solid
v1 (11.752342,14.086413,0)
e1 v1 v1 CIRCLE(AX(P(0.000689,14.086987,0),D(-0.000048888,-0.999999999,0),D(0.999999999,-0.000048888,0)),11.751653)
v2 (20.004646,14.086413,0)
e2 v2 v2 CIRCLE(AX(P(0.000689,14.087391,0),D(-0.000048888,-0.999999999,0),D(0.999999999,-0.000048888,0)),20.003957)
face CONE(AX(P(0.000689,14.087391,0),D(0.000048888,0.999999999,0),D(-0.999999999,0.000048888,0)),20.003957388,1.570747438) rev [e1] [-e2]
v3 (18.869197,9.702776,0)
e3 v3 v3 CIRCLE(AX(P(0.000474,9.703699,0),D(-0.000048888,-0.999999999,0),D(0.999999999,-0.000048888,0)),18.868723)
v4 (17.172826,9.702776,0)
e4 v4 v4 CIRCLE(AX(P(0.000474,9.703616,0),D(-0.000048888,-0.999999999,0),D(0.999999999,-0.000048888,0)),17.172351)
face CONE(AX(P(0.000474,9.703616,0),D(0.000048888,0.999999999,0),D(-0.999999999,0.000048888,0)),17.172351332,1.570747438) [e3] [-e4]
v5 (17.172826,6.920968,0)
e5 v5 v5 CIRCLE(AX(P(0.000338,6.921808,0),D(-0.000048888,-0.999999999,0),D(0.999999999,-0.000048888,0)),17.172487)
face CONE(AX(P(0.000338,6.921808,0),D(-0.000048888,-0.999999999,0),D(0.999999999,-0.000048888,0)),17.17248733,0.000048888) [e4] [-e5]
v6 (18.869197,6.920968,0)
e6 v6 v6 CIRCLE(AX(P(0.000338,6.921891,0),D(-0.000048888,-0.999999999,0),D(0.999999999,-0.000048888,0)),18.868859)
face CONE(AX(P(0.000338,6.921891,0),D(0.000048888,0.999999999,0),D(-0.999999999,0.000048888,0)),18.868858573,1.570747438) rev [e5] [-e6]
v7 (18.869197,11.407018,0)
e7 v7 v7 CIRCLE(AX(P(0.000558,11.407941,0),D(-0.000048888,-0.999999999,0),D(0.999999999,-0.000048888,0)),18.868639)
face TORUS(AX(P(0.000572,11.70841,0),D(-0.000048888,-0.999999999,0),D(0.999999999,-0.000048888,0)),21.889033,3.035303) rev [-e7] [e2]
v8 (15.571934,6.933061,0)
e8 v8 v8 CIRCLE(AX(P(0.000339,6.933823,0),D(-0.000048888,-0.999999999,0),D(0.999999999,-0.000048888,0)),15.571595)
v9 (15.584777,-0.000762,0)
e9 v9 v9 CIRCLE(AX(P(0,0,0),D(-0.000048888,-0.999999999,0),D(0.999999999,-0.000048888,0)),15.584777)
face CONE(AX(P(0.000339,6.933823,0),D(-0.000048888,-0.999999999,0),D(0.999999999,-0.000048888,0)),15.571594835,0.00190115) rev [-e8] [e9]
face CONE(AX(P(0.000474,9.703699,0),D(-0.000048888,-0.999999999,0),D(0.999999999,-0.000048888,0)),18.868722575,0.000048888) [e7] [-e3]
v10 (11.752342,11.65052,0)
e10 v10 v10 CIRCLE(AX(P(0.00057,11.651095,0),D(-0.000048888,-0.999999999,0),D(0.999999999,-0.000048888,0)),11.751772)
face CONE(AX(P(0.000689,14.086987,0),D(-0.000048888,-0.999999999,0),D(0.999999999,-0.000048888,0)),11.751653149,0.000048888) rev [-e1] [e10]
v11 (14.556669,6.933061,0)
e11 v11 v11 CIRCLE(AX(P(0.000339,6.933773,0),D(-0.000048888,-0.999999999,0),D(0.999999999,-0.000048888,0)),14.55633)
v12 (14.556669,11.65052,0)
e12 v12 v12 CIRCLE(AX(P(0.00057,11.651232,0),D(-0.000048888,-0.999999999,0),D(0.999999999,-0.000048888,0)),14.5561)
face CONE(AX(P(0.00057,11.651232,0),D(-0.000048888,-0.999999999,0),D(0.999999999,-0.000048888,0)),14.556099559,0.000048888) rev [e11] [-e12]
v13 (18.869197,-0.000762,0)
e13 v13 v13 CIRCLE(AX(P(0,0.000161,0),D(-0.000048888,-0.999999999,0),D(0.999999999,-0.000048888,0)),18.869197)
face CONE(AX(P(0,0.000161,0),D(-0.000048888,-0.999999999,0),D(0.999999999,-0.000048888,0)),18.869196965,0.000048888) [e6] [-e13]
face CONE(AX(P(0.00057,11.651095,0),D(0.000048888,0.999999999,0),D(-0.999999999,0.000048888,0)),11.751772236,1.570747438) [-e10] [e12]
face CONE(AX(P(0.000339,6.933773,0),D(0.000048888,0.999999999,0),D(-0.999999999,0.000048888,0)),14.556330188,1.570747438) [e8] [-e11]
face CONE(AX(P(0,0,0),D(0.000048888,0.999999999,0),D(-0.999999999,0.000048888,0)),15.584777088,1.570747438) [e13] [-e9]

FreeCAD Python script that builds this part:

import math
import FreeCAD as App
import Part
import Sketcher
Q = App.Units.Quantity

doc = App.newDocument("Part")
params = doc.addObject("Spreadsheet::Sheet", "Params")
for row, (alias, value) in enumerate([
    ("revolution_angle", "360 deg"),
], start=1):
    params.set(f"A{row}", alias)
    params.set(f"B{row}", "=" + value)
    params.setAlias(f"B{row}", alias)

body = doc.addObject("PartDesign::Body", "Body")

# Sketch on XY plane
sketch1 = body.newObject("Sketcher::SketchObject", "Sketch")
sketch1.AttachmentSupport = (doc.getObject("XY_Plane"), [""])
sketch1.MapMode = "FlatFace"
sketch1.addGeometry(Part.LineSegment(App.Vector(20, 14.1, 0), App.Vector(11.8, 14.1, 0)), False)
sketch1.addGeometry(Part.LineSegment(App.Vector(11.8, 14.1, 0), App.Vector(11.8, 11.7, 0)), False)
sketch1.addGeometry(Part.LineSegment(App.Vector(11.8, 11.7, 0), App.Vector(14.6, 11.7, 0)), False)
sketch1.addGeometry(Part.LineSegment(App.Vector(14.6, 11.7, 0), App.Vector(14.6, 6.9, 0)), False)
sketch1.addGeometry(Part.LineSegment(App.Vector(14.6, 6.9, 0), App.Vector(15.6, 6.9, 0)), False)
sketch1.addGeometry(Part.LineSegment(App.Vector(15.6, 6.9, 0), App.Vector(15.6, 0, 0)), False)
sketch1.addGeometry(Part.LineSegment(App.Vector(15.6, 0, 0), App.Vector(18.9, 0, 0)), False)
sketch1.addGeometry(Part.LineSegment(App.Vector(18.9, 0, 0), App.Vector(18.9, 6.9, 0)), False)
sketch1.addGeometry(Part.LineSegment(App.Vector(18.9, 6.9, 0), App.Vector(17.2, 6.9, 0)), False)
sketch1.addGeometry(Part.LineSegment(App.Vector(17.2, 6.9, 0), App.Vector(17.2, 9.7, 0)), False)
sketch1.addGeometry(Part.LineSegment(App.Vector(17.2, 9.7, 0), App.Vector(18.9, 9.7, 0)), False)
sketch1.addGeometry(Part.LineSegment(App.Vector(18.9, 9.7, 0), App.Vector(18.9, 11.4, 0)), False)
sketch1.addGeometry(Part.ArcOfCircle(Part.Circle(App.Vector(21.9, 11.7, 0), App.Vector(0, 0, 1), 3), math.radians(128), math.radians(186)), False)
sketch1.addGeometry(Part.LineSegment(App.Vector(0, 0, 0), App.Vector(0, 14.1, 0)), True)  # axis
sketch1.addConstraint(Sketcher.Constraint("Coincident", 0, 2, 1, 1))
sketch1.addConstraint(Sketcher.Constraint("Coincident", 1, 2, 2, 1))
sketch1.addConstraint(Sketcher.Constraint("Coincident", 2, 2, 3, 1))
sketch1.addConstraint(Sketcher.Constraint("Coincident", 3, 2, 4, 1))
sketch1.addConstraint(Sketcher.Constraint("Coincident", 4, 2, 5, 1))
sketch1.addConstraint(Sketcher.Constraint("Coincident", 5, 2, 6, 1))
sketch1.addConstraint(Sketcher.Constraint("Coincident", 6, 2, 7, 1))
sketch1.addConstraint(Sketcher.Constraint("Coincident", 7, 2, 8, 1))
sketch1.addConstraint(Sketcher.Constraint("Coincident", 8, 2, 9, 1))
sketch1.addConstraint(Sketcher.Constraint("Coincident", 9, 2, 10, 1))
sketch1.addConstraint(Sketcher.Constraint("Coincident", 10, 2, 11, 1))
sketch1.addConstraint(Sketcher.Constraint("Coincident", 11, 2, 12, 2))
sketch1.addConstraint(Sketcher.Constraint("Coincident", 12, 1, 0, 1))
sketch1.addConstraint(Sketcher.Constraint("Horizontal", 0))
sketch1.addConstraint(Sketcher.Constraint("Vertical", 1))
sketch1.addConstraint(Sketcher.Constraint("Horizontal", 2))
sketch1.addConstraint(Sketcher.Constraint("Vertical", 3))
sketch1.addConstraint(Sketcher.Constraint("Horizontal", 4))
sketch1.addConstraint(Sketcher.Constraint("Horizontal", 6))
sketch1.addConstraint(Sketcher.Constraint("Vertical", 7))
sketch1.addConstraint(Sketcher.Constraint("Horizontal", 8))
sketch1.addConstraint(Sketcher.Constraint("Vertical", 9))
sketch1.addConstraint(Sketcher.Constraint("Horizontal", 10))
sketch1.addConstraint(Sketcher.Constraint("Vertical", 11))
sketch1.addConstraint(Sketcher.Constraint("Coincident", 13, 1, -1, 1))
sketch1.addConstraint(Sketcher.Constraint("Vertical", 7, 2, 10, 2))
sketch1.addConstraint(Sketcher.Constraint("Radius", 12, Q("0.1195001 in")))
sketch1.addConstraint(Sketcher.Constraint("DistanceX", 8, 2, 12, 3, Q("0.1857 in")))
sketch1.addConstraint(Sketcher.Constraint("DistanceX", 6, 1, 6, 2, 3.28442))
sketch1.addConstraint(Sketcher.Constraint("DistanceX", 8, 2, 8, 1, 1.696371))
sketch1.addConstraint(Sketcher.Constraint("DistanceY", 3, 2, 3, 1, 4.717459))
sketch1.addConstraint(Sketcher.Constraint("DistanceY", 7, 1, 7, 2, 6.92173))
sketch1.addConstraint(Sketcher.Constraint("DistanceY", 9, 1, 9, 2, 2.781808))
sketch1.addConstraint(Sketcher.Constraint("DistanceY", 11, 1, 11, 2, 1.704242))
sketch1.addConstraint(Sketcher.Constraint("Distance", 13, 14.087391))
sketch1.addConstraint(Sketcher.Constraint("DistanceX", 0, 2, 0, 1, 8.252304))
sketch1.addConstraint(Sketcher.Constraint("DistanceX", 2, 1, 2, 2, 2.804327))
sketch1.addConstraint(Sketcher.Constraint("DistanceX", 4, 1, 4, 2, 1.015265))
sketch1.addConstraint(Sketcher.Constraint("DistanceY", 1, 2, 1, 1, 2.435892))
sketch1.addConstraint(Sketcher.Constraint("DistanceY", -1, 1, 12, 3, 11.707339))
sketch1.addConstraint(Sketcher.Constraint("DistanceX", -1, 1, 0, 2, 11.752342))
sketch1.addConstraint(Sketcher.Constraint("DistanceY", -1, 1, 1, 2, 11.65052))
sketch1.addConstraint(Sketcher.Constraint("DistanceX", -1, 1, 13, 2, 0.000689))
revolution = body.newObject("PartDesign::Revolution", "Revolution")
revolution.Profile = sketch1
revolution.ReferenceAxis = (sketch1, ["Axis0"])
revolution.setExpression("Angle", "Params.revolution_angle")

doc.recompute()
